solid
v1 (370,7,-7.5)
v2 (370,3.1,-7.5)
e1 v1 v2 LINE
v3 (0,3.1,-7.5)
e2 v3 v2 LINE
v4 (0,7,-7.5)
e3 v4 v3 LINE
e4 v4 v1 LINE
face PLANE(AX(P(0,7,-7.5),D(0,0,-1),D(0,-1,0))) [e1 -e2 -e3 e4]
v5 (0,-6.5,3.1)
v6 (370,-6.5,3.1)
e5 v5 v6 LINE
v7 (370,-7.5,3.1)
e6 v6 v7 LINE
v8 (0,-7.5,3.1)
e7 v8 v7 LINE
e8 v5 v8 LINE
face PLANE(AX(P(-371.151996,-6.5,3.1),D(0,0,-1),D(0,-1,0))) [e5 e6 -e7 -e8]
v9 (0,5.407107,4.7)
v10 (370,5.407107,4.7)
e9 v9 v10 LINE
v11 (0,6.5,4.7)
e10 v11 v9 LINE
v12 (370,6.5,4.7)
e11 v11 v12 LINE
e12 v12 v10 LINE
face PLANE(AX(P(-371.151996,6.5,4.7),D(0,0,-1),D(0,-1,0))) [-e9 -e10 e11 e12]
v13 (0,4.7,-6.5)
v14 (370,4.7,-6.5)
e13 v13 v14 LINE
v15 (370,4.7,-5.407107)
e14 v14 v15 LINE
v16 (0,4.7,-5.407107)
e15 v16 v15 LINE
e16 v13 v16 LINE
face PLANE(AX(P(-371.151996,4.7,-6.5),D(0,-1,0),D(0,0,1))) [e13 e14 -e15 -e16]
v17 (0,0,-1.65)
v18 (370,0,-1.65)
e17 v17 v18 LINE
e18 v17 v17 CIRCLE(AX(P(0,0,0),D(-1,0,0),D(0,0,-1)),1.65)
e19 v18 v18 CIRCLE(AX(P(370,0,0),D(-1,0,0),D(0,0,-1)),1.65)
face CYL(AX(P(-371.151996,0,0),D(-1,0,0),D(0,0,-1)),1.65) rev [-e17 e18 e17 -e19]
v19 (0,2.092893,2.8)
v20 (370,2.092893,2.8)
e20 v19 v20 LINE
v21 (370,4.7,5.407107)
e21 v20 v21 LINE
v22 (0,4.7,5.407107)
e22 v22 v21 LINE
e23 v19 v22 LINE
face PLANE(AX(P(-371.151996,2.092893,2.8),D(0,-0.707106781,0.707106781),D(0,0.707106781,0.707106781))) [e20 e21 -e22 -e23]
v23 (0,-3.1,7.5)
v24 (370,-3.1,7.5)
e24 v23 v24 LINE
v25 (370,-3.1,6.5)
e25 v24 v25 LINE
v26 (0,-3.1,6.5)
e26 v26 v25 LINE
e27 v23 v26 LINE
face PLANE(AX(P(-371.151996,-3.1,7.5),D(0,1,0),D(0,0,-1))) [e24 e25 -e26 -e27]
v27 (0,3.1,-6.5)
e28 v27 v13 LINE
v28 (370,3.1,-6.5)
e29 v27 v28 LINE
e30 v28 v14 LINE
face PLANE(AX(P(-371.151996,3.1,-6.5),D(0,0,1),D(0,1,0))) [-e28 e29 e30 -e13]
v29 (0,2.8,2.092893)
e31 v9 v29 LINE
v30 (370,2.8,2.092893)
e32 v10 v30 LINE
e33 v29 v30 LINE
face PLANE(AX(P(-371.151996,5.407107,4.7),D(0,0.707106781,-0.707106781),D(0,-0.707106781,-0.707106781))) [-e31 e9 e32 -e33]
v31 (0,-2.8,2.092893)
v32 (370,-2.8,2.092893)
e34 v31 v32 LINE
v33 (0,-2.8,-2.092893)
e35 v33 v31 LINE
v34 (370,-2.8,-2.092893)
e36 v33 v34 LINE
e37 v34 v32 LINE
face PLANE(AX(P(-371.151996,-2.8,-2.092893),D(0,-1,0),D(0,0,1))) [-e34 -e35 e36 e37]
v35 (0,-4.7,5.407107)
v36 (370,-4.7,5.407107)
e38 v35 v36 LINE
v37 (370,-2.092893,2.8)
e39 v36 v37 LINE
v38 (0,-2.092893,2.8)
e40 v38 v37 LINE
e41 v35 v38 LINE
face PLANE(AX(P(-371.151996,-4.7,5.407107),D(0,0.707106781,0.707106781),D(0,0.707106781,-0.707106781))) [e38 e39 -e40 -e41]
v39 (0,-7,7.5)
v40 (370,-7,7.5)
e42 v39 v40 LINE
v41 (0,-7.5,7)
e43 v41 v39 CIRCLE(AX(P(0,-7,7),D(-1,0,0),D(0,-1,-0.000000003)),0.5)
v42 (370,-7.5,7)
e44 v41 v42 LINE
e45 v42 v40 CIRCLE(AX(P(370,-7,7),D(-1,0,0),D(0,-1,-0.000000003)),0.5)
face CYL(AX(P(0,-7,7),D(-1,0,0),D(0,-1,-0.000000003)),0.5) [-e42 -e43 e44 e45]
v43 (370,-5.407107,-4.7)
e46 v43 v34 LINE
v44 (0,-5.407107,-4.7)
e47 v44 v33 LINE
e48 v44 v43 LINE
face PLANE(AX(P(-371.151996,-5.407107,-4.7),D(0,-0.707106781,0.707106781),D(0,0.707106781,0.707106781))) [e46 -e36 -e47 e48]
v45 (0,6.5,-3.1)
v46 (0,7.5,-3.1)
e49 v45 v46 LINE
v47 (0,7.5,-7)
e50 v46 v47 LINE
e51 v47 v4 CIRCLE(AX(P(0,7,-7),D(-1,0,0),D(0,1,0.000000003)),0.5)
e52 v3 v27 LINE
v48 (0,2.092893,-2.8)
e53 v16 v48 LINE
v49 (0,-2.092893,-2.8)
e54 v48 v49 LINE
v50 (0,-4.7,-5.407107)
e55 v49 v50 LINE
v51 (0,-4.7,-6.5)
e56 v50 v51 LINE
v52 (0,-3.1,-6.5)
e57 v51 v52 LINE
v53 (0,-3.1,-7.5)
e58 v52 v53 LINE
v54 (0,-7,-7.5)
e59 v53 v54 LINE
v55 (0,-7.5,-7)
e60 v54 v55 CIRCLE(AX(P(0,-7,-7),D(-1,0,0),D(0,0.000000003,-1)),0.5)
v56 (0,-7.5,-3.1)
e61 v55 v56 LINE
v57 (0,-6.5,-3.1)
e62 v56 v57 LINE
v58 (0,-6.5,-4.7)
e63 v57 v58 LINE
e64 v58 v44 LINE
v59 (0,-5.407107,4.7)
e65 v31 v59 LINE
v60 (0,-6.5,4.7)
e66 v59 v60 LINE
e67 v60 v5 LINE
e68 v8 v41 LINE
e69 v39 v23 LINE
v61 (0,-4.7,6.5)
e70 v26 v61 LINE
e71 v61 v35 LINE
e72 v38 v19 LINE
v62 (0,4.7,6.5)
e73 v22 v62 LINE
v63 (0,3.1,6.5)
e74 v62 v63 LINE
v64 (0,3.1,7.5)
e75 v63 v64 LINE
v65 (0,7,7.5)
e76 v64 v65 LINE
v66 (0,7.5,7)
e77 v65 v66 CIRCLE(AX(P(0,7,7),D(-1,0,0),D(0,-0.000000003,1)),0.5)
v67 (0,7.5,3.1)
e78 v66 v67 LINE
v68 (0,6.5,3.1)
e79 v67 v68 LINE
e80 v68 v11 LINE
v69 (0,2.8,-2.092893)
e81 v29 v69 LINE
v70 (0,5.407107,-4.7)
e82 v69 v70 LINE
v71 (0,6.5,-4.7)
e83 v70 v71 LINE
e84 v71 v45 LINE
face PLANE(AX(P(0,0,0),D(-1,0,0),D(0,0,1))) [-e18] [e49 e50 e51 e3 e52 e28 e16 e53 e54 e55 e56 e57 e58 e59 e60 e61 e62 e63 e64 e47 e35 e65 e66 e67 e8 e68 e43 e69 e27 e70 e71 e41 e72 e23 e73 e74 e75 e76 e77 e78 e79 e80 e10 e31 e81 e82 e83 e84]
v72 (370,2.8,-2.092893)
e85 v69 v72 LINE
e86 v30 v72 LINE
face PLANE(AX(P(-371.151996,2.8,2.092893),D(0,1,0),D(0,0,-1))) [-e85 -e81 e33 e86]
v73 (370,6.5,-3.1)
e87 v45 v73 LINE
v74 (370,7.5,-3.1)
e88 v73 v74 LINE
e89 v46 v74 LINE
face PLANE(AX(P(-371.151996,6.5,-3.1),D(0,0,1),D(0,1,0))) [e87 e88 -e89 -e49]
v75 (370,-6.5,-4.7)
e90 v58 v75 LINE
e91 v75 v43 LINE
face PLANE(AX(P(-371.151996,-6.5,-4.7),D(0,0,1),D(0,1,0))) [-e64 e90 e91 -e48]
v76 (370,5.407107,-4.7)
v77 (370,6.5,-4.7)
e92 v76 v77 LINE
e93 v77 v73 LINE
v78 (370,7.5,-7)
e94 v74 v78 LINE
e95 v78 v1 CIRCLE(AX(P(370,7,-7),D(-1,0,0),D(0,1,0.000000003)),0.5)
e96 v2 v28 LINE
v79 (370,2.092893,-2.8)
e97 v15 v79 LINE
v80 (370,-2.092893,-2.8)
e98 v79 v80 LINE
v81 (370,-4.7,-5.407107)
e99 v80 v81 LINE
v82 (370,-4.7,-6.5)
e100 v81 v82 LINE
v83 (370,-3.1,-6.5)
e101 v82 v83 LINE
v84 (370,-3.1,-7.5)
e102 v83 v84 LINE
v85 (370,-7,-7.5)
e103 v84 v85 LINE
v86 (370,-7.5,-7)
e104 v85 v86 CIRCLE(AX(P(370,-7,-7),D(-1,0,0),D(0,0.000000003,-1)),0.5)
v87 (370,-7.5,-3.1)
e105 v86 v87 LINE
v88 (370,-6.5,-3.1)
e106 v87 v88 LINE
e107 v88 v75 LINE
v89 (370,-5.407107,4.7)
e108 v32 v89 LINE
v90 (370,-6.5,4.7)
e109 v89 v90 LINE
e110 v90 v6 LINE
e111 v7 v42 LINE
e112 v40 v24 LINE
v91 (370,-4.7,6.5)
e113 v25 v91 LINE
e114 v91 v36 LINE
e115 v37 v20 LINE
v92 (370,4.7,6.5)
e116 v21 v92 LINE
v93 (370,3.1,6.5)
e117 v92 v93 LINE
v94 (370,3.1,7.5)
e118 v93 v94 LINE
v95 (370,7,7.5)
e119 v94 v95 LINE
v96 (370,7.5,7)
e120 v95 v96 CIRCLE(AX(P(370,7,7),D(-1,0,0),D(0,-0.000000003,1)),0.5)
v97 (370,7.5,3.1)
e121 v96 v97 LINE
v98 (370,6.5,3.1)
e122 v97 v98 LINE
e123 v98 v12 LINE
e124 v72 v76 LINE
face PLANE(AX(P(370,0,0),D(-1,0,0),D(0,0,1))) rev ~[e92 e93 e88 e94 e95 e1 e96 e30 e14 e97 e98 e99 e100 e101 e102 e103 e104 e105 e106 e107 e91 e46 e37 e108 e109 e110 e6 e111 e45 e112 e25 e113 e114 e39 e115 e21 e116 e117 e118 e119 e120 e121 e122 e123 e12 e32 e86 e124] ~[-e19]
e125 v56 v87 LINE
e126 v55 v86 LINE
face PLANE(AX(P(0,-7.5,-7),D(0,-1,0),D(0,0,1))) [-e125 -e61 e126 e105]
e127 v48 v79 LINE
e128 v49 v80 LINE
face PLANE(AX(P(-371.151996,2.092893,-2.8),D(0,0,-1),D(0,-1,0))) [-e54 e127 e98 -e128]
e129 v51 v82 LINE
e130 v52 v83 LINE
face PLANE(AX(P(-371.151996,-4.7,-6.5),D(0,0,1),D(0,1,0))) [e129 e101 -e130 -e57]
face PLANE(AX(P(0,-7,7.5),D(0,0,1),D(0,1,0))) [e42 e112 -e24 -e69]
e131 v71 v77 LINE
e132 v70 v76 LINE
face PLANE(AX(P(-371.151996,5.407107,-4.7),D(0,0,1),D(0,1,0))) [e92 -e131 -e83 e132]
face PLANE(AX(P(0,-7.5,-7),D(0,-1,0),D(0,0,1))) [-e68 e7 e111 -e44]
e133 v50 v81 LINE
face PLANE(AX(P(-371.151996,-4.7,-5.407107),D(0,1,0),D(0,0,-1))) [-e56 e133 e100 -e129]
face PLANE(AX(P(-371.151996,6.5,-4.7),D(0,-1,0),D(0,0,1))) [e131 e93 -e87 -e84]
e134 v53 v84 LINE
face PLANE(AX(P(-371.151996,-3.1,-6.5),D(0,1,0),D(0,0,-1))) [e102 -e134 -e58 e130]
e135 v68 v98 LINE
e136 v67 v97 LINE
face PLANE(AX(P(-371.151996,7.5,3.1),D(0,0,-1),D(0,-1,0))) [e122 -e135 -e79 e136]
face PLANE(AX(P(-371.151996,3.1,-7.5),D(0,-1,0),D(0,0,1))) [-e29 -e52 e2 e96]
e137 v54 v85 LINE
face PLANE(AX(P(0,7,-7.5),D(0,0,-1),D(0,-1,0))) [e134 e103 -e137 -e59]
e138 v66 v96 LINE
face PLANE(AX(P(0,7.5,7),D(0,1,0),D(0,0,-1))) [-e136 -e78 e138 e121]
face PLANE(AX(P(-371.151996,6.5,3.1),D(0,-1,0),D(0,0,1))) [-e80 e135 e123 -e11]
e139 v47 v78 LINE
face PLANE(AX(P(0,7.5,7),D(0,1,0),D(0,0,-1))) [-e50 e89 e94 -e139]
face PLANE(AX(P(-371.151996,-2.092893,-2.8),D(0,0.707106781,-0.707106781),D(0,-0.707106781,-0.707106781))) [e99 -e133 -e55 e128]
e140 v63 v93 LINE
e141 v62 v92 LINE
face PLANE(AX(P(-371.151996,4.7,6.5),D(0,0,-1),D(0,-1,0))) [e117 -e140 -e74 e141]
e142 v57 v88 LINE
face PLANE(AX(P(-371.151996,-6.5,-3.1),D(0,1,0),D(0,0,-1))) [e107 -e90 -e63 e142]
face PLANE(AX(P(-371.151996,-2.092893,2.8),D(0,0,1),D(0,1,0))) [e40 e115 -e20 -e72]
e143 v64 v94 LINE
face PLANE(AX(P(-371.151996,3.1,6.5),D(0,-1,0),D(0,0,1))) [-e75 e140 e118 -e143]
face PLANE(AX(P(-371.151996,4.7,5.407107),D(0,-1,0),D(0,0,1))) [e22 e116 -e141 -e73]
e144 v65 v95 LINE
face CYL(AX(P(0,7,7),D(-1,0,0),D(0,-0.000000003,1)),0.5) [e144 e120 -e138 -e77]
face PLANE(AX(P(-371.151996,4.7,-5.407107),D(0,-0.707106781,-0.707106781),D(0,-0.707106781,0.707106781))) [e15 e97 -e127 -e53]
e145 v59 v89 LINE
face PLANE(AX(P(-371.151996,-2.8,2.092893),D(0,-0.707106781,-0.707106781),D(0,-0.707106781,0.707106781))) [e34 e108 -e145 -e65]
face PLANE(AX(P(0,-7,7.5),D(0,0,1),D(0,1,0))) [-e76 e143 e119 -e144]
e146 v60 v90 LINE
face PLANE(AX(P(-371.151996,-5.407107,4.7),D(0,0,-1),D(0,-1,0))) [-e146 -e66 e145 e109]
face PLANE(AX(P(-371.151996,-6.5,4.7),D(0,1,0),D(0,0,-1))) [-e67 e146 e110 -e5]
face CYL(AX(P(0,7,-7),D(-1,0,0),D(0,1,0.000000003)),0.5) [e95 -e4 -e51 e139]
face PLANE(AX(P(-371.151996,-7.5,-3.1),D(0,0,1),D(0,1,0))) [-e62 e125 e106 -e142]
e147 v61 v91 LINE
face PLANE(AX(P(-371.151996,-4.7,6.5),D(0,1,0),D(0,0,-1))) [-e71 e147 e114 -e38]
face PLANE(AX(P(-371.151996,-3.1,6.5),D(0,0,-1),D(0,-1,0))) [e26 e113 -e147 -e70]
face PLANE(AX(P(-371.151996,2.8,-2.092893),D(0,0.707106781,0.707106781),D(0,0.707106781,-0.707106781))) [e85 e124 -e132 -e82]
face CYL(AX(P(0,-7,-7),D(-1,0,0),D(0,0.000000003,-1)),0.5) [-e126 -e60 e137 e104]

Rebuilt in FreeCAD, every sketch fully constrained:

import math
import FreeCAD as App
import Part
import Sketcher


def add_polygon(sketch, points):
    """Adds a closed chain of lines whose ends are joined by coincident constraints."""
    first, n = sketch.GeometryCount, len(points)
    for a, b in zip(points, points[1:] + points[:1]):
        sketch.addGeometry(Part.LineSegment(App.Vector(*a, 0), App.Vector(*b, 0)), False)
    for i in range(n):
        sketch.addConstraint(Sketcher.Constraint("Coincident", first + i, 2, first + (i + 1) % n, 1))

doc = App.newDocument("Part")
body = doc.addObject("PartDesign::Body", "Body")

sketch1 = doc.addObject("Sketcher::SketchObject", "Sketch")
body.addObject(sketch1)
sketch1.AttachmentSupport = (doc.YZ_Plane, [""])
sketch1.MapMode = "FlatFace"
sketch1.addGeometry([
    Part.LineSegment(App.Vector(7.5, -7, 0), App.Vector(7.5, 7, 0)),
    Part.ArcOfCircle(Part.Circle(App.Vector(7, 7, 0), App.Vector(0, 0, 1), 0.5), math.radians(0), math.radians(90)),
    Part.LineSegment(App.Vector(7, 7.5, 0), App.Vector(-7, 7.5, 0)),
    Part.ArcOfCircle(Part.Circle(App.Vector(-7, 7, 0), App.Vector(0, 0, 1), 0.5), math.radians(90), math.radians(180)),
    Part.LineSegment(App.Vector(-7.5, 7, 0), App.Vector(-7.5, -7, 0)),
    Part.ArcOfCircle(Part.Circle(App.Vector(-7, -7, 0), App.Vector(0, 0, 1), 0.5), math.radians(180), math.radians(270)),
    Part.LineSegment(App.Vector(-7, -7.5, 0), App.Vector(7, -7.5, 0)),
    Part.ArcOfCircle(Part.Circle(App.Vector(7, -7, 0), App.Vector(0, 0, 1), 0.5), math.radians(-90), math.radians(0)),
], False)
sketch1.addConstraint([
    Sketcher.Constraint("Tangent", 0, 2, 1, 1),
    Sketcher.Constraint("Tangent", 1, 2, 2, 1),
    Sketcher.Constraint("Tangent", 2, 2, 3, 1),
    Sketcher.Constraint("Tangent", 3, 2, 4, 1),
    Sketcher.Constraint("Tangent", 4, 2, 5, 1),
    Sketcher.Constraint("Tangent", 5, 2, 6, 1),
    Sketcher.Constraint("Tangent", 6, 2, 7, 1),
    Sketcher.Constraint("Tangent", 7, 2, 0, 1),
    Sketcher.Constraint("Vertical", 0),
    Sketcher.Constraint("Horizontal", 2),
    Sketcher.Constraint("Vertical", 4),
    Sketcher.Constraint("Horizontal", 6),
    Sketcher.Constraint("Equal", 1, 3),
    Sketcher.Constraint("Equal", 3, 5),
    Sketcher.Constraint("Equal", 5, 7),
    Sketcher.Constraint("Symmetric", 1, 3, 5, 3, -1, 1),
    Sketcher.Constraint("Equal", 6, 0),
    Sketcher.Constraint("Radius", 1, 0.5),
    Sketcher.Constraint("DistanceX", 2, 2, 2, 1, 14.0),
])
pad1 = doc.addObject("PartDesign::Pad", "Pad")
body.addObject(pad1)
pad1.Profile = sketch1
pad1.Length = 370

sketch2 = doc.addObject("Sketcher::SketchObject", "Sketch001")
body.addObject(sketch2)
sketch2.AttachmentSupport = (doc.YZ_Plane, [""])
sketch2.MapMode = "FlatFace"
add_polygon(sketch2, [(-6.5, 3.1), (-7.5, 3.1), (-7.5, -3.1), (-6.5, -3.1), (-6.5, -4.7), (-5.4, -4.7), (-2.8, -2.1), (-2.8, 2.1), (-5.4, 4.7), (-6.5, 4.7)])
add_polygon(sketch2, [(3.1, 6.5), (3.1, 7.5), (-3.1, 7.5), (-3.1, 6.5), (-4.7, 6.5), (-4.7, 5.4), (-2.1, 2.8), (2.1, 2.8), (4.7, 5.4), (4.7, 6.5)])
add_polygon(sketch2, [(6.5, -4.7), (6.5, -3.1), (7.5, -3.1), (7.5, 3.1), (6.5, 3.1), (6.5, 4.7), (5.4, 4.7), (2.8, 2.1), (2.8, -2.1), (5.4, -4.7)])
add_polygon(sketch2, [(-3.1, -7.5), (3.1, -7.5), (3.1, -6.5), (4.7, -6.5), (4.7, -5.4), (2.1, -2.8), (-2.1, -2.8), (-4.7, -5.4), (-4.7, -6.5), (-3.1, -6.5)])
sketch2.addGeometry(Part.Circle(App.Vector(0, 0, 0), App.Vector(0, 0, 1), 1.6), False)
sketch2.addConstraint([
    Sketcher.Constraint("Horizontal", 0),
    Sketcher.Constraint("Vertical", 1),
    Sketcher.Constraint("Horizontal", 2),
    Sketcher.Constraint("Vertical", 3),
    Sketcher.Constraint("Horizontal", 4),
    Sketcher.Constraint("Vertical", 6),
    Sketcher.Constraint("Horizontal", 8),
    Sketcher.Constraint("Vertical", 9),
    Sketcher.Constraint("Vertical", 10),
    Sketcher.Constraint("Horizontal", 11),
    Sketcher.Constraint("Vertical", 12),
    Sketcher.Constraint("Horizontal", 13),
    Sketcher.Constraint("Vertical", 14),
    Sketcher.Constraint("Horizontal", 16),
    Sketcher.Constraint("Vertical", 18),
    Sketcher.Constraint("Horizontal", 19),
    Sketcher.Constraint("Vertical", 20),
    Sketcher.Constraint("Horizontal", 21),
    Sketcher.Constraint("Vertical", 22),
    Sketcher.Constraint("Horizontal", 23),
    Sketcher.Constraint("Vertical", 24),
    Sketcher.Constraint("Horizontal", 25),
    Sketcher.Constraint("Vertical", 27),
    Sketcher.Constraint("Horizontal", 29),
    Sketcher.Constraint("Horizontal", 30),
    Sketcher.Constraint("Vertical", 31),
    Sketcher.Constraint("Horizontal", 32),
    Sketcher.Constraint("Vertical", 33),
    Sketcher.Constraint("Horizontal", 35),
    Sketcher.Constraint("Vertical", 37),
    Sketcher.Constraint("Horizontal", 38),
    Sketcher.Constraint("Vertical", 39),
    Sketcher.Constraint("Coincident", 40, 3, -1, 1),
    Sketcher.Constraint("Symmetric", 9, 2, 20, 2, -1, 1),
    Sketcher.Constraint("Symmetric", 1, 2, 22, 2, -1, 1),
    Sketcher.Constraint("Symmetric", 3, 2, 24, 2, -1, 1),
    Sketcher.Constraint("Symmetric", 5, 2, 26, 2, -1, 1),
    Sketcher.Constraint("Symmetric", 7, 2, 28, 2, -1, 1),
    Sketcher.Constraint("Symmetric", 11, 2, 30, 2, -1, 1),
    Sketcher.Constraint("Symmetric", 13, 2, 32, 2, -1, 1),
    Sketcher.Constraint("Symmetric", 15, 2, 34, 2, -1, 1),
    Sketcher.Constraint("Symmetric", 17, 2, 36, 2, -1, 1),
    Sketcher.Constraint("Symmetric", 19, 2, 38, 2, -1, 1),
    Sketcher.Constraint("Symmetric", 14, 2, 17, 2, -2),
    Sketcher.Constraint("Symmetric", 12, 2, 19, 2, -2),
    Sketcher.Constraint("Symmetric", 2, 2, 20, 2, -2),
    Sketcher.Constraint("Symmetric", 7, 2, 25, 2, -2),
    Sketcher.Constraint("Perpendicular", 5, 7),
    Sketcher.Constraint("Parallel", 7, 15),
    Sketcher.Constraint("Perpendicular", 15, 17),
    Sketcher.Constraint("Parallel", 17, 26),
    Sketcher.Constraint("Perpendicular", 26, 28),
    Sketcher.Constraint("Parallel", 28, 34),
    Sketcher.Constraint("Perpendicular", 34, 36),
    Sketcher.Constraint("Horizontal", 6, 2, 26, 2),
    Sketcher.Constraint("Equal", 30, 1),
    Sketcher.Constraint("Equal", 38, 3),
    Sketcher.Constraint("Equal", 35, 6),
    Sketcher.Constraint("Equal", 23, 10),
    Sketcher.Constraint("Equal", 29, 14),
    Sketcher.Constraint("Diameter", 40, 3.3),
    Sketcher.Constraint("DistanceX", 0, 2, 0, 1, 1.0),
    Sketcher.Constraint("DistanceX", 11, 2, 11, 1, 6.2),
    Sketcher.Constraint("DistanceX", 13, 2, 13, 1, 1.6),
    Sketcher.Constraint("DistanceX", 0, 2, -1, 1, 7.5),
    Sketcher.Constraint("DistanceX", 5, 2, -1, 1, 2.8),
    Sketcher.Constraint("DistanceY", -1, 1, 10, 2, 7.5),
    Sketcher.Constraint("DistanceX", 4, 1, 4, 2, 1.092893),
])
pocket1 = doc.addObject("PartDesign::Pocket", "Pocket")
body.addObject(pocket1)
pocket1.Profile = sketch2
pocket1.Type = "ThroughAll"
pocket1.Midplane = True

doc.recompute()
